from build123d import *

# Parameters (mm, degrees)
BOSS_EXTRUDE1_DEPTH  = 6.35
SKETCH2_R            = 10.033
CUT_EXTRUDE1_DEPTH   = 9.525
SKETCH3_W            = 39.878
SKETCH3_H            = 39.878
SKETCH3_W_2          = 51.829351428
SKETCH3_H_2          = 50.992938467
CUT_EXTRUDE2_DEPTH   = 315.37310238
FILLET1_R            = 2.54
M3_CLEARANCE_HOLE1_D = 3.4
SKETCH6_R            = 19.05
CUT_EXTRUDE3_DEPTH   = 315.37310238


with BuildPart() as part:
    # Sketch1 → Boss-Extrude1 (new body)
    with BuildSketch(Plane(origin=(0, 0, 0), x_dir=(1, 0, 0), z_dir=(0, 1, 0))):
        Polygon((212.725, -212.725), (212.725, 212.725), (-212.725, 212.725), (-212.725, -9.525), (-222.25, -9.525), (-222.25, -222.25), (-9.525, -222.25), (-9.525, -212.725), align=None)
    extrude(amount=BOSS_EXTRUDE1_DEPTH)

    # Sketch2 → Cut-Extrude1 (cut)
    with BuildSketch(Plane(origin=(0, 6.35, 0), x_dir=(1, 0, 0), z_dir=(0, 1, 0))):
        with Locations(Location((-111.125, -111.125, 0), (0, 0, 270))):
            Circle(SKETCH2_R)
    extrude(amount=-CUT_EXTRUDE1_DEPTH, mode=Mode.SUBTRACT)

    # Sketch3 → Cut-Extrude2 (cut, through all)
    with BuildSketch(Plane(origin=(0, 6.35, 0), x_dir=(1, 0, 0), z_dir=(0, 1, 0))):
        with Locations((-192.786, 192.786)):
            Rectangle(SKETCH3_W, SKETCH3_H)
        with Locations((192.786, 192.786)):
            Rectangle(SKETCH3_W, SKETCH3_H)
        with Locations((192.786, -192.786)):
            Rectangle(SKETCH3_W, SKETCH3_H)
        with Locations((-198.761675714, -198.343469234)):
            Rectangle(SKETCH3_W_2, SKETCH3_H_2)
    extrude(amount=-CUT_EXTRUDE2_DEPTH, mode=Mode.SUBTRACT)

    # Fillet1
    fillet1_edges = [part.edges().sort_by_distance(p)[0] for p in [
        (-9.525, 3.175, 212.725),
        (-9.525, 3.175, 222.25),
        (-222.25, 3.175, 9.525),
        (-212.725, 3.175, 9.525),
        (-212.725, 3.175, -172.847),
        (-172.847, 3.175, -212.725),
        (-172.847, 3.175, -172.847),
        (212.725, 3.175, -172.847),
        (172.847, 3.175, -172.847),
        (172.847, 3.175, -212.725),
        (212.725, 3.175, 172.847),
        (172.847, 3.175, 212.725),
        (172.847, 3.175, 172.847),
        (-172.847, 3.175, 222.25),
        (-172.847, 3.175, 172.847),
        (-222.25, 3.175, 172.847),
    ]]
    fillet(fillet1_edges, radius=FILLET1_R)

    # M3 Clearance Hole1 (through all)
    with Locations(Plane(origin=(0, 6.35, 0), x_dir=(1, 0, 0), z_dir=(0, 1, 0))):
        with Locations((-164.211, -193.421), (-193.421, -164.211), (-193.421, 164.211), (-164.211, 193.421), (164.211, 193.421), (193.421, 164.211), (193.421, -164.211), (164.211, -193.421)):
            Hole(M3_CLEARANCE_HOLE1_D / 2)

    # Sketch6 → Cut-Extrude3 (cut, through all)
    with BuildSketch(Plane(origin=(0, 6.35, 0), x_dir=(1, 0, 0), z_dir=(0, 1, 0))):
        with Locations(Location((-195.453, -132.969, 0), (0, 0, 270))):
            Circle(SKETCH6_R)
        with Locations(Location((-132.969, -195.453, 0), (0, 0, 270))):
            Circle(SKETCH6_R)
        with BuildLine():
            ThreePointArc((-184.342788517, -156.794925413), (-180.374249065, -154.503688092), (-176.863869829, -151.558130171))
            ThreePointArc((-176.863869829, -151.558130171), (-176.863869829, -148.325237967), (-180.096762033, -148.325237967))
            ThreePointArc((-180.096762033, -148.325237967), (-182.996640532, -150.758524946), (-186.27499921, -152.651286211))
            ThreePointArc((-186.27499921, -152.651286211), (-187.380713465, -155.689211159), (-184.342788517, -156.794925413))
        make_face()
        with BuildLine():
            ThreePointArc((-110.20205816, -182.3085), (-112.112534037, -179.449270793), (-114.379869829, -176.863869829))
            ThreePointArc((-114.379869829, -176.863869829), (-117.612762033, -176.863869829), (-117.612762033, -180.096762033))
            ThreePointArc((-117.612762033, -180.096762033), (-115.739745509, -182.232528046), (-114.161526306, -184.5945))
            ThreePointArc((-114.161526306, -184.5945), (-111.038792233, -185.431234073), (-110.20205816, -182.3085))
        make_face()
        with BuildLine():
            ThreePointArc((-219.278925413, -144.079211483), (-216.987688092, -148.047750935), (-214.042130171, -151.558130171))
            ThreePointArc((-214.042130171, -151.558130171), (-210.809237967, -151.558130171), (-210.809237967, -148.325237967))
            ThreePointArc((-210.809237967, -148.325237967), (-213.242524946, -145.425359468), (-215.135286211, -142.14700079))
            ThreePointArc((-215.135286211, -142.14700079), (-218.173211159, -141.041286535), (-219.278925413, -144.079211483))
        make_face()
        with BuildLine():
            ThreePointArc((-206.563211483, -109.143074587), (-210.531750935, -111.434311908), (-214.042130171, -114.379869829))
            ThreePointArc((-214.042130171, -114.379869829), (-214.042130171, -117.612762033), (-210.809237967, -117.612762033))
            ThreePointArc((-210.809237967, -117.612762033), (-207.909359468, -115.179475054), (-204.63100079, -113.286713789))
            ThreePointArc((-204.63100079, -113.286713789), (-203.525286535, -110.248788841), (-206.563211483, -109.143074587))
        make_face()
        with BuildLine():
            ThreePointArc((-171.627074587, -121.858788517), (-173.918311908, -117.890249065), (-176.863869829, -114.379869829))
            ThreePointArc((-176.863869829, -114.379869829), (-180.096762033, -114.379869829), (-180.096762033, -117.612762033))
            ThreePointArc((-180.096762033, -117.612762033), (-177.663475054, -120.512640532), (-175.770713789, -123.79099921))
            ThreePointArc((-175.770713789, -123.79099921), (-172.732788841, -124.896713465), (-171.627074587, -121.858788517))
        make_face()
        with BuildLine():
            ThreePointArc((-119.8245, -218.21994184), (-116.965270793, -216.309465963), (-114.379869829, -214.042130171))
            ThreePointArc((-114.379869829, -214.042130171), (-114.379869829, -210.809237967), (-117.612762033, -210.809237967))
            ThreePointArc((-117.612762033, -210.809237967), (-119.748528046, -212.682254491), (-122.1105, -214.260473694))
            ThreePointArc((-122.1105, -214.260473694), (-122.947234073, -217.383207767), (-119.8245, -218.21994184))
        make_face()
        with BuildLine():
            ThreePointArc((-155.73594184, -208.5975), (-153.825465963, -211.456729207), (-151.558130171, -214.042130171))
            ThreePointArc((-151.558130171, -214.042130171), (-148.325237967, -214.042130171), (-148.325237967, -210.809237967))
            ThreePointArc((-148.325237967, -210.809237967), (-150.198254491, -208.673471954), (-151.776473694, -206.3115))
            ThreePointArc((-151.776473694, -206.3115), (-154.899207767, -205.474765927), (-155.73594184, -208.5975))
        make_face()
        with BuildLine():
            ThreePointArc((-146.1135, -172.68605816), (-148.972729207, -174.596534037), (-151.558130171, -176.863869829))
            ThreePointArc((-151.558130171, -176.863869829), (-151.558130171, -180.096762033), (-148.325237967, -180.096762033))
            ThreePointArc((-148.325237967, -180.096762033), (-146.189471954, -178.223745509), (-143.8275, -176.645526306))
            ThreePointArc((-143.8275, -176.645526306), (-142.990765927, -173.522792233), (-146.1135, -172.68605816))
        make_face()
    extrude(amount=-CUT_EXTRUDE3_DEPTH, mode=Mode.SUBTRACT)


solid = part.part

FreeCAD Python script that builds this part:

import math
import FreeCAD as App
import Part
import Sketcher
from FreeCAD import Vector
Q = App.Units.Quantity


def edges_at(feature, points):
    """Names of the edges that pass closest to the given points."""
    edges = feature.Shape.Edges
    near = lambda p: min(range(len(edges)), key=lambda i: edges[i].distToShape(Part.Vertex(*p))[0])
    return sorted({f"Edge{near(p) + 1}" for p in points})


def add_polygon(sketch, points):
    """Adds a closed chain of lines whose ends are joined by coincident constraints."""
    first, n = sketch.GeometryCount, len(points)
    for a, b in zip(points, points[1:] + points[:1]):
        sketch.addGeometry(Part.LineSegment(App.Vector(*a, 0), App.Vector(*b, 0)), False)
    for i in range(n):
        sketch.addConstraint(Sketcher.Constraint("Coincident", first + i, 2, first + (i + 1) % n, 1))

doc = App.newDocument("Part")
params = doc.addObject("Spreadsheet::Sheet", "Params")
for row, (alias, value) in enumerate([
    ("sketch1_width", "16.75 in"),
    ("sketch1_width2", "0.375 in"),
    ("pad1_length", "0.25 in"),
    ("sketch2_diameter", "0.79 in"),
    ("pocket1_length", "0.375 in"),
    ("sketch3_width", "1.57 in"),
    ("fillet_radius", "0.1 in"),
    ("hole_diameter", "3.4 mm"),
    ("sketch5_diameter", "1.5 in"),
    ("sketch5_radius", "0.09 in"),
    ("sketch5_radius2", "1.035 in"),
], start=1):
    params.set(f"A{row}", alias)
    params.set(f"B{row}", "=" + value)
    params.setAlias(f"B{row}", alias)

body = doc.addObject("PartDesign::Body", "Body")

# Sketch on XZ plane
sketch1 = doc.addObject("Sketcher::SketchObject", "Sketch")
body.addObject(sketch1)
sketch1.AttachmentSupport = (doc.XZ_Plane, [""])
sketch1.MapMode = "FlatFace"
add_polygon(sketch1, [(213, 213), (213, -213), (-213, -213), (-213, 10), (-222, 10), (-222, 222), (-10, 222), (-10, 213)])  # lines 0-7
sketch1.addConstraint([
    Sketcher.Constraint("Vertical", 0),
    Sketcher.Constraint("Horizontal", 1),
    Sketcher.Constraint("Vertical", 2),
    Sketcher.Constraint("Horizontal", 3),
    Sketcher.Constraint("Vertical", 4),
    Sketcher.Constraint("Horizontal", 5),
    Sketcher.Constraint("Vertical", 6),
    Sketcher.Constraint("Horizontal", 7),
    Sketcher.Constraint("Symmetric", 1, 2, 7, 2, -1, 1),
    Sketcher.Constraint("Equal", 1, 0),
    Sketcher.Constraint("Equal", 7, 2),
    Sketcher.Constraint("Equal", 5, 4),
    Sketcher.Constraint("DistanceX", 2, 2, 5, 2, Q("8 in")),
    Sketcher.Constraint("DistanceX", 1, 2, 1, 1, Q("16.75 in")),
    Sketcher.Constraint("DistanceX", 3, 2, 3, 1, Q("0.375 in")),
])
sketch1.setExpression("Constraints[21]", "Params.sketch1_width")
sketch1.setExpression("Constraints[22]", "Params.sketch1_width2")
pad1 = doc.addObject("PartDesign::Pad", "Pad")
body.addObject(pad1)
pad1.Profile = sketch1
pad1.setExpression("Length", "Params.pad1_length")
pad1.Reversed = True

# Sketch on XZ plane
sketch2 = doc.addObject("Sketcher::SketchObject", "Sketch001")
body.addObject(sketch2)
sketch2.AttachmentSupport = (doc.XZ_Plane, [""])
sketch2.MapMode = "FlatFace"
sketch2.AttachmentOffset = App.Placement(Vector(0, 0, -0.25 * 25.4), App.Rotation())
sketch2.addGeometry(Part.Circle(Vector(-111, 111, 0), Vector(0, 0, 1), 10), False)
sketch2.addConstraint([
    Sketcher.Constraint("Diameter", 0, Q("0.79 in")),
    Sketcher.Constraint("DistanceX", 0, 3, -1, 1, Q("4.375 in")),
    Sketcher.Constraint("DistanceY", -1, 1, 0, 3, Q("4.375 in")),
])
sketch2.setExpression("Constraints[0]", "Params.sketch2_diameter")
pocket1 = doc.addObject("PartDesign::Pocket", "Pocket")
body.addObject(pocket1)
pocket1.Profile = sketch2
pocket1.setExpression("Length", "Params.pocket1_length")
pocket1.Reversed = True

# Sketch on XZ plane
sketch3 = doc.addObject("Sketcher::SketchObject", "Sketch002")
body.addObject(sketch3)
sketch3.AttachmentSupport = (doc.XZ_Plane, [""])
sketch3.MapMode = "FlatFace"
sketch3.AttachmentOffset = App.Placement(Vector(0, 0, -0.25 * 25.4), App.Rotation())
add_polygon(sketch3, [(-213, -213), (-213, -173), (-173, -173), (-173, -213)])  # lines 0-3
add_polygon(sketch3, [(173, -213), (173, -173), (213, -173), (213, -213)])  # lines 4-7
add_polygon(sketch3, [(173, 173), (173, 213), (213, 213), (213, 173)])  # lines 8-11
add_polygon(sketch3, [(-225, 173), (-225, 224), (-173, 224), (-173, 173)])  # lines 12-15
sketch3.addConstraint([
    Sketcher.Constraint("Vertical", 0),
    Sketcher.Constraint("Horizontal", 1),
    Sketcher.Constraint("Vertical", 2),
    Sketcher.Constraint("Horizontal", 3),
    Sketcher.Constraint("Vertical", 4),
    Sketcher.Constraint("Horizontal", 5),
    Sketcher.Constraint("Vertical", 6),
    Sketcher.Constraint("Horizontal", 7),
    Sketcher.Constraint("Vertical", 8),
    Sketcher.Constraint("Horizontal", 9),
    Sketcher.Constraint("Vertical", 10),
    Sketcher.Constraint("Horizontal", 11),
    Sketcher.Constraint("Vertical", 12),
    Sketcher.Constraint("Horizontal", 13),
    Sketcher.Constraint("Vertical", 14),
    Sketcher.Constraint("Horizontal", 15),
    Sketcher.Constraint("Symmetric", 2, 2, 8, 2, -1, 1),
    Sketcher.Constraint("Symmetric", 0, 2, 10, 2, -1, 1),
    Sketcher.Constraint("Symmetric", 4, 2, 14, 2, -1, 1),
    Sketcher.Constraint("Symmetric", 1, 2, 4, 2, -2),
    Sketcher.Constraint("Symmetric", 3, 2, 6, 2, -2),
    Sketcher.Constraint("Equal", 11, 0),
    Sketcher.Constraint("DistanceX", 1, 1, 1, 2, Q("1.57 in")),
    Sketcher.Constraint("DistanceX", 1, 2, 4, 2, Q("13.61 in")),
    Sketcher.Constraint("DistanceY", 4, 2, 8, 2, Q("15.18 in")),
    Sketcher.Constraint("DistanceX", 13, 1, 13, 2, Q("51.829351 mm")),
    Sketcher.Constraint("DistanceY", 12, 1, 12, 2, Q("50.992938 mm")),
])
sketch3.setExpression("Constraints[38]", "Params.sketch3_width")
pocket2 = doc.addObject("PartDesign::Pocket", "Pocket001")
body.addObject(pocket2)
pocket2.Profile = sketch3
pocket2.Type = "ThroughAll"
pocket2.Reversed = True
doc.recompute()

fillet = doc.addObject("PartDesign::Fillet", "Fillet")
body.addObject(fillet)
fillet.Base = (pocket2, edges_at(pocket2, [
    (-9.525, 3.175, 212.725),
    (-9.525, 3.175, 222.25),
    (-222.25, 3.175, 9.525),
    (-212.725, 3.175, 9.525),
    (-212.725, 3.175, -172.847),
    (-172.847, 3.175, -212.725),
    (-172.847, 3.175, -172.847),
    (212.725, 3.175, -172.847),
    (172.847, 3.175, -172.847),
    (172.847, 3.175, -212.725),
    (212.725, 3.175, 172.847),
    (172.847, 3.175, 212.725),
    (172.847, 3.175, 172.847),
    (-172.847, 3.175, 222.25),
    (-172.847, 3.175, 172.847),
    (-222.25, 3.175, 172.847),
]))
fillet.setExpression("Radius", "Params.fillet_radius")

# Sketch on XZ plane
sketch4 = doc.addObject("Sketcher::SketchObject", "Sketch003")
body.addObject(sketch4)
sketch4.AttachmentSupport = (doc.XZ_Plane, [""])
sketch4.MapMode = "FlatFace"
sketch4.AttachmentOffset = App.Placement(Vector(0, 0, -0.25 * 25.4), App.Rotation())
sketch4.addGeometry([
    Part.Circle(Vector(-164.2, 193.4, 0), Vector(0, 0, 1), 1.7),  # 0
    Part.Circle(Vector(-193.4, 164.2, 0), Vector(0, 0, 1), 1.7),  # 1
    Part.Circle(Vector(-193.4, -164.2, 0), Vector(0, 0, 1), 1.7),  # 2
    Part.Circle(Vector(-164.2, -193.4, 0), Vector(0, 0, 1), 1.7),  # 3
    Part.Circle(Vector(164.2, -193.4, 0), Vector(0, 0, 1), 1.7),  # 4
    Part.Circle(Vector(193.4, -164.2, 0), Vector(0, 0, 1), 1.7),  # 5
    Part.Circle(Vector(193.4, 164.2, 0), Vector(0, 0, 1), 1.7),  # 6
    Part.Circle(Vector(164.2, 193.4, 0), Vector(0, 0, 1), 1.7),  # 7
], False)
sketch4.addConstraint([
    Sketcher.Constraint("Equal", 0, 1),
    Sketcher.Constraint("Equal", 1, 2),
    Sketcher.Constraint("Equal", 2, 3),
    Sketcher.Constraint("Equal", 3, 4),
    Sketcher.Constraint("Equal", 4, 5),
    Sketcher.Constraint("Equal", 5, 6),
    Sketcher.Constraint("Equal", 6, 7),
    Sketcher.Constraint("Symmetric", 0, 3, 4, 3, -1, 1),
    Sketcher.Constraint("Symmetric", 1, 3, 5, 3, -1, 1),
    Sketcher.Constraint("Symmetric", 2, 3, 6, 3, -1, 1),
    Sketcher.Constraint("Symmetric", 3, 3, 7, 3, -1, 1),
    Sketcher.Constraint("Symmetric", 3, 3, 4, 3, -2),
    Sketcher.Constraint("Symmetric", 2, 3, 5, 3, -2),
    Sketcher.Constraint("Diameter", 0, Q("3.4 mm")),
    Sketcher.Constraint("DistanceX", 1, 3, 0, 3, Q("1.15 in")),
    Sketcher.Constraint("DistanceY", 1, 3, 0, 3, Q("1.15 in")),
    Sketcher.Constraint("DistanceY", 2, 3, 1, 3, Q("12.93 in")),
    Sketcher.Constraint("DistanceX", 3, 3, 4, 3, Q("12.93 in")),
])
doc.recompute()
hole = doc.addObject("PartDesign::Hole", "Hole")
body.addObject(hole)
hole.Profile = sketch4
hole.ThreadType = "None"
hole.setExpression("Diameter", "Params.hole_diameter")
hole.DepthType = "ThroughAll"
hole.Reversed = True

# Sketch on XZ plane
sketch5 = doc.addObject("Sketcher::SketchObject", "Sketch004")
body.addObject(sketch5)
sketch5.AttachmentSupport = (doc.XZ_Plane, [""])
sketch5.MapMode = "FlatFace"
sketch5.AttachmentOffset = App.Placement(Vector(0, 0, -0.25 * 25.4), App.Rotation())
sketch5.addGeometry([
    Part.Circle(Vector(-195.5, 133, 0), Vector(0, 0, 1), 19.1),  # 0
    Part.Circle(Vector(-133, 195.5, 0), Vector(0, 0, 1), 19.1),  # 1
    Part.ArcOfCircle(Part.Circle(Vector(-195.5, 133, 0), Vector(0, 0, 1), 26.3), math.radians(45), math.radians(65)),  # 2
    Part.ArcOfCircle(Part.Circle(Vector(-178.5, 149.9, 0), Vector(0, 0, 1), 2.3), math.radians(-135), math.radians(45)),  # 3
    Part.ArcOfCircle(Part.Circle(Vector(-195.5, 133, 0), Vector(0, 0, 1), 21.7), math.radians(45), math.radians(65)),  # 4
    Part.ArcOfCircle(Part.Circle(Vector(-185.3, 154.7, 0), Vector(0, 0, 1), 2.3), math.radians(65), math.radians(245)),  # 5
    Part.ArcOfCircle(Part.Circle(Vector(-133, 195.5, 0), Vector(0, 0, 1), 26.3), math.radians(-45), math.radians(-30)),  # 6
    Part.ArcOfCircle(Part.Circle(Vector(-116, 178.5, 0), Vector(0, 0, 1), 2.3), math.radians(135), math.radians(315)),  # 7
    Part.ArcOfCircle(Part.Circle(Vector(-133, 195.5, 0), Vector(0, 0, 1), 21.7), math.radians(-45), math.radians(-30)),  # 8
    Part.ArcOfCircle(Part.Circle(Vector(-112.2, 183.5, 0), Vector(0, 0, 1), 2.3), math.radians(-30), math.radians(150)),  # 9
    Part.ArcOfCircle(Part.Circle(Vector(-195.5, 133, 0), Vector(0, 0, 1), 26.3), math.radians(135), math.radians(155)),  # 10
    Part.ArcOfCircle(Part.Circle(Vector(-212.4, 149.9, 0), Vector(0, 0, 1), 2.3), math.radians(-45), math.radians(135)),  # 11
    Part.ArcOfCircle(Part.Circle(Vector(-195.5, 133, 0), Vector(0, 0, 1), 21.7), math.radians(135), math.radians(155)),  # 12
    Part.ArcOfCircle(Part.Circle(Vector(-217.2, 143.1, 0), Vector(0, 0, 1), 2.3), math.radians(155), math.radians(335)),  # 13
    Part.ArcOfCircle(Part.Circle(Vector(-195.5, 133, 0), Vector(0, 0, 1), 26.3), math.radians(-135), math.radians(-115)),  # 14
    Part.ArcOfCircle(Part.Circle(Vector(-212.4, 116, 0), Vector(0, 0, 1), 2.3), math.radians(45), math.radians(225)),  # 15
    Part.ArcOfCircle(Part.Circle(Vector(-195.5, 133, 0), Vector(0, 0, 1), 21.7), math.radians(-135), math.radians(-115)),  # 16
    Part.ArcOfCircle(Part.Circle(Vector(-205.6, 111.2, 0), Vector(0, 0, 1), 2.3), math.radians(-115), math.radians(65)),  # 17
    Part.ArcOfCircle(Part.Circle(Vector(-195.5, 133, 0), Vector(0, 0, 1), 26.3), math.radians(-45), math.radians(-25)),  # 18
    Part.ArcOfCircle(Part.Circle(Vector(-178.5, 116, 0), Vector(0, 0, 1), 2.3), math.radians(135), math.radians(315)),  # 19
    Part.ArcOfCircle(Part.Circle(Vector(-195.5, 133, 0), Vector(0, 0, 1), 21.7), math.radians(-45), math.radians(-25)),  # 20
    Part.ArcOfCircle(Part.Circle(Vector(-173.7, 122.8, 0), Vector(0, 0, 1), 2.3), math.radians(-25), math.radians(155)),  # 21
    Part.ArcOfCircle(Part.Circle(Vector(-133, 195.5, 0), Vector(0, 0, 1), 26.3), math.radians(45), math.radians(60)),  # 22
    Part.ArcOfCircle(Part.Circle(Vector(-116, 212.4, 0), Vector(0, 0, 1), 2.3), math.radians(-135), math.radians(45)),  # 23
    Part.ArcOfCircle(Part.Circle(Vector(-133, 195.5, 0), Vector(0, 0, 1), 21.7), math.radians(45), math.radians(60)),  # 24
    Part.ArcOfCircle(Part.Circle(Vector(-121, 216.2, 0), Vector(0, 0, 1), 2.3), math.radians(60), math.radians(240)),  # 25
    Part.ArcOfCircle(Part.Circle(Vector(-133, 195.5, 0), Vector(0, 0, 1), 26.3), math.radians(135), math.radians(150)),  # 26
    Part.ArcOfCircle(Part.Circle(Vector(-149.9, 212.4, 0), Vector(0, 0, 1), 2.3), math.radians(-45), math.radians(135)),  # 27
    Part.ArcOfCircle(Part.Circle(Vector(-133, 195.5, 0), Vector(0, 0, 1), 21.7), math.radians(135), math.radians(150)),  # 28
    Part.ArcOfCircle(Part.Circle(Vector(-153.8, 207.5, 0), Vector(0, 0, 1), 2.3), math.radians(150), math.radians(330)),  # 29
    Part.ArcOfCircle(Part.Circle(Vector(-133, 195.5, 0), Vector(0, 0, 1), 26.3), math.radians(-135), math.radians(-120)),  # 30
    Part.ArcOfCircle(Part.Circle(Vector(-149.9, 178.5, 0), Vector(0, 0, 1), 2.3), math.radians(45), math.radians(225)),  # 31
    Part.ArcOfCircle(Part.Circle(Vector(-133, 195.5, 0), Vector(0, 0, 1), 21.7), math.radians(-135), math.radians(-120)),  # 32
    Part.ArcOfCircle(Part.Circle(Vector(-145, 174.7, 0), Vector(0, 0, 1), 2.3), math.radians(-120), math.radians(60)),  # 33
], False)
sketch5.addConstraint([
    Sketcher.Constraint("Tangent", 2, 1, 3, 2),
    Sketcher.Constraint("Tangent", 3, 1, 4, 1),
    Sketcher.Constraint("Tangent", 4, 2, 5, 2),
    Sketcher.Constraint("Tangent", 5, 1, 2, 2),
    Sketcher.Constraint("Tangent", 6, 1, 7, 2),
    Sketcher.Constraint("Tangent", 7, 1, 8, 1),
    Sketcher.Constraint("Tangent", 8, 2, 9, 2),
    Sketcher.Constraint("Tangent", 9, 1, 6, 2),
    Sketcher.Constraint("Tangent", 10, 1, 11, 2),
    Sketcher.Constraint("Tangent", 11, 1, 12, 1),
    Sketcher.Constraint("Tangent", 12, 2, 13, 2),
    Sketcher.Constraint("Tangent", 13, 1, 10, 2),
    Sketcher.Constraint("Tangent", 14, 1, 15, 2),
    Sketcher.Constraint("Tangent", 15, 1, 16, 1),
    Sketcher.Constraint("Tangent", 16, 2, 17, 2),
    Sketcher.Constraint("Tangent", 17, 1, 14, 2),
    Sketcher.Constraint("Tangent", 18, 1, 19, 2),
    Sketcher.Constraint("Tangent", 19, 1, 20, 1),
    Sketcher.Constraint("Tangent", 20, 2, 21, 2),
    Sketcher.Constraint("Tangent", 21, 1, 18, 2),
    Sketcher.Constraint("Tangent", 22, 1, 23, 2),
    Sketcher.Constraint("Tangent", 23, 1, 24, 1),
    Sketcher.Constraint("Tangent", 24, 2, 25, 2),
    Sketcher.Constraint("Tangent", 25, 1, 22, 2),
    Sketcher.Constraint("Tangent", 26, 1, 27, 2),
    Sketcher.Constraint("Tangent", 27, 1, 28, 1),
    Sketcher.Constraint("Tangent", 28, 2, 29, 2),
    Sketcher.Constraint("Tangent", 29, 1, 26, 2),
    Sketcher.Constraint("Tangent", 30, 1, 31, 2),
    Sketcher.Constraint("Tangent", 31, 1, 32, 1),
    Sketcher.Constraint("Tangent", 32, 2, 33, 2),
    Sketcher.Constraint("Tangent", 33, 1, 30, 2),
    Sketcher.Constraint("Coincident", 2, 3, 0, 3),
    Sketcher.Constraint("Coincident", 4, 3, 0, 3),
    Sketcher.Constraint("Coincident", 6, 3, 1, 3),
    Sketcher.Constraint("Coincident", 8, 3, 1, 3),
    Sketcher.Constraint("Coincident", 10, 3, 0, 3),
    Sketcher.Constraint("Coincident", 12, 3, 0, 3),
    Sketcher.Constraint("Coincident", 14, 3, 0, 3),
    Sketcher.Constraint("Coincident", 16, 3, 0, 3),
    Sketcher.Constraint("Coincident", 18, 3, 0, 3),
    Sketcher.Constraint("Coincident", 20, 3, 0, 3),
    Sketcher.Constraint("Coincident", 22, 3, 1, 3),
    Sketcher.Constraint("Coincident", 24, 3, 1, 3),
    Sketcher.Constraint("Coincident", 26, 3, 1, 3),
    Sketcher.Constraint("Coincident", 28, 3, 1, 3),
    Sketcher.Constraint("Coincident", 30, 3, 1, 3),
    Sketcher.Constraint("Coincident", 32, 3, 1, 3),
    Sketcher.Constraint("Equal", 0, 1),
    Sketcher.Constraint("Equal", 2, 6),
    Sketcher.Constraint("Equal", 5, 7),
    Sketcher.Constraint("Equal", 6, 10),
    Sketcher.Constraint("Equal", 9, 11),
    Sketcher.Constraint("Equal", 10, 14),
    Sketcher.Constraint("Equal", 13, 15),
    Sketcher.Constraint("Equal", 14, 18),
    Sketcher.Constraint("Equal", 17, 19),
    Sketcher.Constraint("Equal", 18, 22),
    Sketcher.Constraint("Equal", 21, 23),
    Sketcher.Constraint("Equal", 22, 26),
    Sketcher.Constraint("Equal", 25, 27),
    Sketcher.Constraint("Equal", 26, 30),
    Sketcher.Constraint("Equal", 29, 31),
    Sketcher.Constraint("Horizontal", 3, 3, 11, 3),
    Sketcher.Constraint("Horizontal", 15, 3, 19, 3),
    Sketcher.Constraint("Horizontal", 23, 3, 27, 3),
    Sketcher.Constraint("Horizontal", 7, 3, 31, 3),
    Sketcher.Constraint("Vertical", 11, 3, 15, 3),
    Sketcher.Constraint("Vertical", 7, 3, 23, 3),
    Sketcher.Constraint("Diameter", 0, Q("1.5 in")),
    Sketcher.Constraint("Radius", 3, Q("0.09 in")),
    Sketcher.Constraint("Radius", 2, Q("1.035 in")),
    Sketcher.Constraint("DistanceX", 0, 3, -1, 1, Q("7.695 in")),
    Sketcher.Constraint("DistanceY", -1, 1, 0, 3, Q("5.235 in")),
    Sketcher.Constraint("DistanceX", 1, 3, -1, 1, Q("5.235 in")),
    Sketcher.Constraint("DistanceY", -1, 1, 1, 3, Q("7.695 in")),
    Sketcher.Constraint("DistanceY", -1, 1, 9, 3, Q("7.2225 in")),
    Sketcher.Constraint("DistanceX", 25, 3, -1, 1, Q("4.7625 in")),
    Sketcher.Constraint("DistanceY", -1, 1, 29, 3, Q("8.1675 in")),
    Sketcher.Constraint("DistanceX", 33, 3, -1, 1, Q("5.7075 in")),
    Sketcher.Constraint("DistanceX", 4, 2, -1, 1, Q("186.274999 mm")),
    Sketcher.Constraint("DistanceY", -1, 1, 12, 2, Q("142.147001 mm")),
    Sketcher.Constraint("DistanceX", 16, 2, -1, 1, Q("204.631001 mm")),
    Sketcher.Constraint("DistanceY", -1, 1, 20, 2, Q("123.790999 mm")),
    Sketcher.Constraint("DistanceX", 2, 1, -1, 1, Q("176.86387 mm")),
    Sketcher.Constraint("DistanceX", 6, 1, -1, 1, Q("114.37987 mm")),
])
sketch5.setExpression("Constraints[69]", "Params.sketch5_diameter")
sketch5.setExpression("Constraints[70]", "Params.sketch5_radius")
sketch5.setExpression("Constraints[71]", "Params.sketch5_radius2")
pocket3 = doc.addObject("PartDesign::Pocket", "Pocket002")
body.addObject(pocket3)
pocket3.Profile = sketch5
pocket3.Type = "ThroughAll"
pocket3.Reversed = True

doc.recompute()
